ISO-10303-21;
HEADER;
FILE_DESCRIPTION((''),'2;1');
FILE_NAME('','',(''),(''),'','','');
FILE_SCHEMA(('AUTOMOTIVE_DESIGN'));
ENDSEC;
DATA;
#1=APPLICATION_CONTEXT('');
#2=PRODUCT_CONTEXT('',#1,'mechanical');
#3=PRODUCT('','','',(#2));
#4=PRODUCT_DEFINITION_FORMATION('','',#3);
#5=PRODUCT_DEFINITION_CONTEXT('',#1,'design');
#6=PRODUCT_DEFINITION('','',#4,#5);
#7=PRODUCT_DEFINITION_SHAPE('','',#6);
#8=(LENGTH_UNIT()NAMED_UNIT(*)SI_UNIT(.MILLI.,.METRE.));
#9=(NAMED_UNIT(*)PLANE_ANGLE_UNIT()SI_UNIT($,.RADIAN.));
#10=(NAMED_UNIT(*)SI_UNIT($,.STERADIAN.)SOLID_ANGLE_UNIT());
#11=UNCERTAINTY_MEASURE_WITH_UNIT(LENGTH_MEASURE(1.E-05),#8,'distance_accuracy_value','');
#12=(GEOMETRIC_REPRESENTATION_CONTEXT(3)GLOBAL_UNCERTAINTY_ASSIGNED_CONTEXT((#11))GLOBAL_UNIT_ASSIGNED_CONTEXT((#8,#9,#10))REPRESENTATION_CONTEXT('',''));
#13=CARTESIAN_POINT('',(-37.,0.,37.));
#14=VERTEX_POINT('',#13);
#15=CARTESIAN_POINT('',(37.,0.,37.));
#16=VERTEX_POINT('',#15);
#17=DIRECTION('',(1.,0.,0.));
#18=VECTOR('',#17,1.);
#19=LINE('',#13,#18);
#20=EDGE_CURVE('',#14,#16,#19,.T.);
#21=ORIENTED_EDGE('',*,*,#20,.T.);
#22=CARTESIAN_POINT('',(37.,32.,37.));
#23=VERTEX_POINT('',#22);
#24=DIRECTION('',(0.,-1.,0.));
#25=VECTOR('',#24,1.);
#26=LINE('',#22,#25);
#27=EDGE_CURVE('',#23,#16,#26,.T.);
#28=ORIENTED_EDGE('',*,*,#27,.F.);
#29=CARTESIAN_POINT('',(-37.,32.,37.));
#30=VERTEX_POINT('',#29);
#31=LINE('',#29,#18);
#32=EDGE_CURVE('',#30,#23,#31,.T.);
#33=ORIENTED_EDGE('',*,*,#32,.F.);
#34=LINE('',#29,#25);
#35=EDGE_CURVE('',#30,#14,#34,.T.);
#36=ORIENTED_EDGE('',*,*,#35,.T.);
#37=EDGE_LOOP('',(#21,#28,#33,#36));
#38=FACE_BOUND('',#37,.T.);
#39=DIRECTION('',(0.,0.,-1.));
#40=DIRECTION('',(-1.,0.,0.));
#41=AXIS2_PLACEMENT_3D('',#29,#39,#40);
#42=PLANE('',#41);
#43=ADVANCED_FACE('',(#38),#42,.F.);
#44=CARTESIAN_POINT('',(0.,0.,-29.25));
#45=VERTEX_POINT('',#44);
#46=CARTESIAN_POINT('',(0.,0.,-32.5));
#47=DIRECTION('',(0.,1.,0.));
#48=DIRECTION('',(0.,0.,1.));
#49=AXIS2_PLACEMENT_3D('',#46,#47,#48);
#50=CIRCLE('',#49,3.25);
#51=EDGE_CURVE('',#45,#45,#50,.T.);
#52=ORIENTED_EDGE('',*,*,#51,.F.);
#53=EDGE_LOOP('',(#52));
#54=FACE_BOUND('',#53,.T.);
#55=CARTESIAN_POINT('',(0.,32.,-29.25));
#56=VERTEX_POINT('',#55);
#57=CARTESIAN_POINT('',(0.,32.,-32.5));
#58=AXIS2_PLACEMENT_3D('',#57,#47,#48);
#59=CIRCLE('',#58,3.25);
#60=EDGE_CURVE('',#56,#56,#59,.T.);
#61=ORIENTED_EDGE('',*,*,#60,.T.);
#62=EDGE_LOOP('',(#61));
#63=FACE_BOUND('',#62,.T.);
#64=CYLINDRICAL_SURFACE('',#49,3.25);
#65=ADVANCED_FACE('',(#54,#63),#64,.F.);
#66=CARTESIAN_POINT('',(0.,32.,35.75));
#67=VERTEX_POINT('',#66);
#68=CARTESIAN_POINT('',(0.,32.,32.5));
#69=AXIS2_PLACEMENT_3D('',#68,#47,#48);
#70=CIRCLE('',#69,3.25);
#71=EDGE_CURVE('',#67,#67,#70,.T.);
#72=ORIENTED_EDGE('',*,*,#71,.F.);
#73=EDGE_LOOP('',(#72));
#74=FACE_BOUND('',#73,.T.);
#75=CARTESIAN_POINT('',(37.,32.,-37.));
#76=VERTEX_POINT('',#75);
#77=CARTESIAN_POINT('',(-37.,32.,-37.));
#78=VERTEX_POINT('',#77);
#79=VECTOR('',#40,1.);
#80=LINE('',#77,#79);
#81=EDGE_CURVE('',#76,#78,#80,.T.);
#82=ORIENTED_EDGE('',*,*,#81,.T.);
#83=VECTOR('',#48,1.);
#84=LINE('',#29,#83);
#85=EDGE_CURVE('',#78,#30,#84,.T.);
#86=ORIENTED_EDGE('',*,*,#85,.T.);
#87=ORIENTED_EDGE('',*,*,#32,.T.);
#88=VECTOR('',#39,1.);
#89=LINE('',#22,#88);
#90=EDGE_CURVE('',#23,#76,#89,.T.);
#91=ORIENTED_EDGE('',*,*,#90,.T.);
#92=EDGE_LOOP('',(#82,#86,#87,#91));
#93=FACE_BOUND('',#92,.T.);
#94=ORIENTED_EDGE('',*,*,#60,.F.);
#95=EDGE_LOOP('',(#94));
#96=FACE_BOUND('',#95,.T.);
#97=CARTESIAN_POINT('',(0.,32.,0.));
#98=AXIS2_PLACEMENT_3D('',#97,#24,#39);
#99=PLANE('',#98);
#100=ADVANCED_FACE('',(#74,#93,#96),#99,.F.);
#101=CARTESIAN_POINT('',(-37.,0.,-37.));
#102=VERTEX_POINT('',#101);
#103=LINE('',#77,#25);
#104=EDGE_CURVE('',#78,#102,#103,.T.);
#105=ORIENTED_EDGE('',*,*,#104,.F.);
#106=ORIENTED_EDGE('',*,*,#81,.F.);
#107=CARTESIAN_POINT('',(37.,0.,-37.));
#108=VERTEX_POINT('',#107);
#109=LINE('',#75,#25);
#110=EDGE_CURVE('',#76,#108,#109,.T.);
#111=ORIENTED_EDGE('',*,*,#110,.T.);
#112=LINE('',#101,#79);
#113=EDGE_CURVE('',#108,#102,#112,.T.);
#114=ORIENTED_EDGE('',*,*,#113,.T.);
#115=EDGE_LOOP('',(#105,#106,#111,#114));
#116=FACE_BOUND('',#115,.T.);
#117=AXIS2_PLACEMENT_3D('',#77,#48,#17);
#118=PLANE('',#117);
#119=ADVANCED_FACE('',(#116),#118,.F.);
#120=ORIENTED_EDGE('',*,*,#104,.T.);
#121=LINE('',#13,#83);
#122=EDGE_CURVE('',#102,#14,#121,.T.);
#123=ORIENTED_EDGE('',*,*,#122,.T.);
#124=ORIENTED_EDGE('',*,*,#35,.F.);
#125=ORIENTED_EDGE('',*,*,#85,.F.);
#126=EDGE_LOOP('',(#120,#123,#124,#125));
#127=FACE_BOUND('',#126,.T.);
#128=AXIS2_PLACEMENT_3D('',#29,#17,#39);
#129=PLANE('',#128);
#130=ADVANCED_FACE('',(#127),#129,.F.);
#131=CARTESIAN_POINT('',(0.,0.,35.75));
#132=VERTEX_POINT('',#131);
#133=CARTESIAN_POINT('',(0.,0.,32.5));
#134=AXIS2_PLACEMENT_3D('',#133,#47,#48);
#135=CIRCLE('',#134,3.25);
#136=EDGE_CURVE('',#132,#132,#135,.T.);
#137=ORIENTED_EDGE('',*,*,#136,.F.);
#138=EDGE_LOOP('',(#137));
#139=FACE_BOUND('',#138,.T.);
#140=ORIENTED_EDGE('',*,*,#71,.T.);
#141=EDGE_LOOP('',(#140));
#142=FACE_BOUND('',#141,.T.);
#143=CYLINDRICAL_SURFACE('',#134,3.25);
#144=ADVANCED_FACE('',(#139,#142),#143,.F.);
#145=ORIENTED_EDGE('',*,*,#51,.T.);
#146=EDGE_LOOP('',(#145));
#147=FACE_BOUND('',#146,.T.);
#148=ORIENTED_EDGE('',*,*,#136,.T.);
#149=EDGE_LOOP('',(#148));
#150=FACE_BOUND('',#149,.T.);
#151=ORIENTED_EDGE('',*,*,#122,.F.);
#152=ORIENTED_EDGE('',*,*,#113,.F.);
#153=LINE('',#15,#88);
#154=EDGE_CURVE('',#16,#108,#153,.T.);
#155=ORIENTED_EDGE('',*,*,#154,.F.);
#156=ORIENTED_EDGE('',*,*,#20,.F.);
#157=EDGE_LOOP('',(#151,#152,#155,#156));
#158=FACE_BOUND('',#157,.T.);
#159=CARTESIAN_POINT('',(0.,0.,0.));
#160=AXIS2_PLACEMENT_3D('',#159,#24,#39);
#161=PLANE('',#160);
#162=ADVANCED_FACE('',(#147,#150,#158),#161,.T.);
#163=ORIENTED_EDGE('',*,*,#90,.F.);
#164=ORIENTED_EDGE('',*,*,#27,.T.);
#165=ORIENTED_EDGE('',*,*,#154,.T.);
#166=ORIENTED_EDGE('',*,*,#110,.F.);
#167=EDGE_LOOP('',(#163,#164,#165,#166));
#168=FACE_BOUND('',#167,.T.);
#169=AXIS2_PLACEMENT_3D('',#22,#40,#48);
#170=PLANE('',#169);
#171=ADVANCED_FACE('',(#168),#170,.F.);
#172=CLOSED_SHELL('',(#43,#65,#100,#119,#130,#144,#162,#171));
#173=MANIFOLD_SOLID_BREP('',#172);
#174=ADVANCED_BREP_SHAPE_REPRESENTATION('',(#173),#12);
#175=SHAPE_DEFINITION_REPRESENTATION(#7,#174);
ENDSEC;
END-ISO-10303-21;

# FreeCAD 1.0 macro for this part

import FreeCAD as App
import Part
import Sketcher
Q = App.Units.Quantity

doc = App.newDocument("Part")
body = doc.addObject("PartDesign::Body", "Body")

sketch1 = doc.addObject("Sketcher::SketchObject", "Sketch")
body.addObject(sketch1)
sketch1.AttachmentSupport = (doc.XZ_Plane, [""])
sketch1.MapMode = "FlatFace"
sketch1.addGeometry(Part.LineSegment(App.Vector(-37, -37, 0), App.Vector(-37, 37, 0)), False)
sketch1.addGeometry(Part.LineSegment(App.Vector(-37, 37, 0), App.Vector(37, 37, 0)), False)
sketch1.addGeometry(Part.LineSegment(App.Vector(37, 37, 0), App.Vector(37, -37, 0)), False)
sketch1.addGeometry(Part.LineSegment(App.Vector(37, -37, 0), App.Vector(-37, -37, 0)), False)
sketch1.addConstraint(Sketcher.Constraint("Coincident", 0, 2, 1, 1))
sketch1.addConstraint(Sketcher.Constraint("Coincident", 1, 2, 2, 1))
sketch1.addConstraint(Sketcher.Constraint("Coincident", 2, 2, 3, 1))
sketch1.addConstraint(Sketcher.Constraint("Coincident", 3, 2, 0, 1))
sketch1.addConstraint(Sketcher.Constraint("Vertical", 0))
sketch1.addConstraint(Sketcher.Constraint("Horizontal", 1))
sketch1.addConstraint(Sketcher.Constraint("Vertical", 2))
sketch1.addConstraint(Sketcher.Constraint("Horizontal", 3))
sketch1.addConstraint(Sketcher.Constraint("Symmetric", 0, 2, 2, 2, -1, 1))
sketch1.addConstraint(Sketcher.Constraint("Equal", 3, 0))
sketch1.addConstraint(Sketcher.Constraint("DistanceX", 1, 1, 1, 2, Q("74 mm")))
pad1 = doc.addObject("PartDesign::Pad", "Pad")
body.addObject(pad1)
pad1.Profile = sketch1
pad1.Length = 32
pad1.Reversed = True

sketch2 = doc.addObject("Sketcher::SketchObject", "Sketch001")
body.addObject(sketch2)
sketch2.AttachmentSupport = (doc.XZ_Plane, [""])
sketch2.MapMode = "FlatFace"
sketch2.AttachmentOffset = App.Placement(App.Vector(0, 0, -32), App.Rotation())
sketch2.addGeometry(Part.Circle(App.Vector(0, -32.5, 0), App.Vector(0, 0, 1), 3.25), False)
sketch2.addGeometry(Part.Circle(App.Vector(0, 32.5, 0), App.Vector(0, 0, 1), 3.25), False)
sketch2.addConstraint(Sketcher.Constraint("Equal", 0, 1))
sketch2.addConstraint(Sketcher.Constraint("Symmetric", 0, 3, 1, 3, -1, 1))
sketch2.addConstraint(Sketcher.Constraint("PointOnObject", 0, 3, -2))
sketch2.addConstraint(Sketcher.Constraint("Diameter", 0, Q("6.5 mm")))
sketch2.addConstraint(Sketcher.Constraint("DistanceY", 0, 3, 1, 3, Q("65 mm")))
pocket1 = doc.addObject("PartDesign::Pocket", "Pocket")
body.addObject(pocket1)
pocket1.Profile = sketch2
pocket1.Type = "ThroughAll"
pocket1.Reversed = True

doc.recompute()
